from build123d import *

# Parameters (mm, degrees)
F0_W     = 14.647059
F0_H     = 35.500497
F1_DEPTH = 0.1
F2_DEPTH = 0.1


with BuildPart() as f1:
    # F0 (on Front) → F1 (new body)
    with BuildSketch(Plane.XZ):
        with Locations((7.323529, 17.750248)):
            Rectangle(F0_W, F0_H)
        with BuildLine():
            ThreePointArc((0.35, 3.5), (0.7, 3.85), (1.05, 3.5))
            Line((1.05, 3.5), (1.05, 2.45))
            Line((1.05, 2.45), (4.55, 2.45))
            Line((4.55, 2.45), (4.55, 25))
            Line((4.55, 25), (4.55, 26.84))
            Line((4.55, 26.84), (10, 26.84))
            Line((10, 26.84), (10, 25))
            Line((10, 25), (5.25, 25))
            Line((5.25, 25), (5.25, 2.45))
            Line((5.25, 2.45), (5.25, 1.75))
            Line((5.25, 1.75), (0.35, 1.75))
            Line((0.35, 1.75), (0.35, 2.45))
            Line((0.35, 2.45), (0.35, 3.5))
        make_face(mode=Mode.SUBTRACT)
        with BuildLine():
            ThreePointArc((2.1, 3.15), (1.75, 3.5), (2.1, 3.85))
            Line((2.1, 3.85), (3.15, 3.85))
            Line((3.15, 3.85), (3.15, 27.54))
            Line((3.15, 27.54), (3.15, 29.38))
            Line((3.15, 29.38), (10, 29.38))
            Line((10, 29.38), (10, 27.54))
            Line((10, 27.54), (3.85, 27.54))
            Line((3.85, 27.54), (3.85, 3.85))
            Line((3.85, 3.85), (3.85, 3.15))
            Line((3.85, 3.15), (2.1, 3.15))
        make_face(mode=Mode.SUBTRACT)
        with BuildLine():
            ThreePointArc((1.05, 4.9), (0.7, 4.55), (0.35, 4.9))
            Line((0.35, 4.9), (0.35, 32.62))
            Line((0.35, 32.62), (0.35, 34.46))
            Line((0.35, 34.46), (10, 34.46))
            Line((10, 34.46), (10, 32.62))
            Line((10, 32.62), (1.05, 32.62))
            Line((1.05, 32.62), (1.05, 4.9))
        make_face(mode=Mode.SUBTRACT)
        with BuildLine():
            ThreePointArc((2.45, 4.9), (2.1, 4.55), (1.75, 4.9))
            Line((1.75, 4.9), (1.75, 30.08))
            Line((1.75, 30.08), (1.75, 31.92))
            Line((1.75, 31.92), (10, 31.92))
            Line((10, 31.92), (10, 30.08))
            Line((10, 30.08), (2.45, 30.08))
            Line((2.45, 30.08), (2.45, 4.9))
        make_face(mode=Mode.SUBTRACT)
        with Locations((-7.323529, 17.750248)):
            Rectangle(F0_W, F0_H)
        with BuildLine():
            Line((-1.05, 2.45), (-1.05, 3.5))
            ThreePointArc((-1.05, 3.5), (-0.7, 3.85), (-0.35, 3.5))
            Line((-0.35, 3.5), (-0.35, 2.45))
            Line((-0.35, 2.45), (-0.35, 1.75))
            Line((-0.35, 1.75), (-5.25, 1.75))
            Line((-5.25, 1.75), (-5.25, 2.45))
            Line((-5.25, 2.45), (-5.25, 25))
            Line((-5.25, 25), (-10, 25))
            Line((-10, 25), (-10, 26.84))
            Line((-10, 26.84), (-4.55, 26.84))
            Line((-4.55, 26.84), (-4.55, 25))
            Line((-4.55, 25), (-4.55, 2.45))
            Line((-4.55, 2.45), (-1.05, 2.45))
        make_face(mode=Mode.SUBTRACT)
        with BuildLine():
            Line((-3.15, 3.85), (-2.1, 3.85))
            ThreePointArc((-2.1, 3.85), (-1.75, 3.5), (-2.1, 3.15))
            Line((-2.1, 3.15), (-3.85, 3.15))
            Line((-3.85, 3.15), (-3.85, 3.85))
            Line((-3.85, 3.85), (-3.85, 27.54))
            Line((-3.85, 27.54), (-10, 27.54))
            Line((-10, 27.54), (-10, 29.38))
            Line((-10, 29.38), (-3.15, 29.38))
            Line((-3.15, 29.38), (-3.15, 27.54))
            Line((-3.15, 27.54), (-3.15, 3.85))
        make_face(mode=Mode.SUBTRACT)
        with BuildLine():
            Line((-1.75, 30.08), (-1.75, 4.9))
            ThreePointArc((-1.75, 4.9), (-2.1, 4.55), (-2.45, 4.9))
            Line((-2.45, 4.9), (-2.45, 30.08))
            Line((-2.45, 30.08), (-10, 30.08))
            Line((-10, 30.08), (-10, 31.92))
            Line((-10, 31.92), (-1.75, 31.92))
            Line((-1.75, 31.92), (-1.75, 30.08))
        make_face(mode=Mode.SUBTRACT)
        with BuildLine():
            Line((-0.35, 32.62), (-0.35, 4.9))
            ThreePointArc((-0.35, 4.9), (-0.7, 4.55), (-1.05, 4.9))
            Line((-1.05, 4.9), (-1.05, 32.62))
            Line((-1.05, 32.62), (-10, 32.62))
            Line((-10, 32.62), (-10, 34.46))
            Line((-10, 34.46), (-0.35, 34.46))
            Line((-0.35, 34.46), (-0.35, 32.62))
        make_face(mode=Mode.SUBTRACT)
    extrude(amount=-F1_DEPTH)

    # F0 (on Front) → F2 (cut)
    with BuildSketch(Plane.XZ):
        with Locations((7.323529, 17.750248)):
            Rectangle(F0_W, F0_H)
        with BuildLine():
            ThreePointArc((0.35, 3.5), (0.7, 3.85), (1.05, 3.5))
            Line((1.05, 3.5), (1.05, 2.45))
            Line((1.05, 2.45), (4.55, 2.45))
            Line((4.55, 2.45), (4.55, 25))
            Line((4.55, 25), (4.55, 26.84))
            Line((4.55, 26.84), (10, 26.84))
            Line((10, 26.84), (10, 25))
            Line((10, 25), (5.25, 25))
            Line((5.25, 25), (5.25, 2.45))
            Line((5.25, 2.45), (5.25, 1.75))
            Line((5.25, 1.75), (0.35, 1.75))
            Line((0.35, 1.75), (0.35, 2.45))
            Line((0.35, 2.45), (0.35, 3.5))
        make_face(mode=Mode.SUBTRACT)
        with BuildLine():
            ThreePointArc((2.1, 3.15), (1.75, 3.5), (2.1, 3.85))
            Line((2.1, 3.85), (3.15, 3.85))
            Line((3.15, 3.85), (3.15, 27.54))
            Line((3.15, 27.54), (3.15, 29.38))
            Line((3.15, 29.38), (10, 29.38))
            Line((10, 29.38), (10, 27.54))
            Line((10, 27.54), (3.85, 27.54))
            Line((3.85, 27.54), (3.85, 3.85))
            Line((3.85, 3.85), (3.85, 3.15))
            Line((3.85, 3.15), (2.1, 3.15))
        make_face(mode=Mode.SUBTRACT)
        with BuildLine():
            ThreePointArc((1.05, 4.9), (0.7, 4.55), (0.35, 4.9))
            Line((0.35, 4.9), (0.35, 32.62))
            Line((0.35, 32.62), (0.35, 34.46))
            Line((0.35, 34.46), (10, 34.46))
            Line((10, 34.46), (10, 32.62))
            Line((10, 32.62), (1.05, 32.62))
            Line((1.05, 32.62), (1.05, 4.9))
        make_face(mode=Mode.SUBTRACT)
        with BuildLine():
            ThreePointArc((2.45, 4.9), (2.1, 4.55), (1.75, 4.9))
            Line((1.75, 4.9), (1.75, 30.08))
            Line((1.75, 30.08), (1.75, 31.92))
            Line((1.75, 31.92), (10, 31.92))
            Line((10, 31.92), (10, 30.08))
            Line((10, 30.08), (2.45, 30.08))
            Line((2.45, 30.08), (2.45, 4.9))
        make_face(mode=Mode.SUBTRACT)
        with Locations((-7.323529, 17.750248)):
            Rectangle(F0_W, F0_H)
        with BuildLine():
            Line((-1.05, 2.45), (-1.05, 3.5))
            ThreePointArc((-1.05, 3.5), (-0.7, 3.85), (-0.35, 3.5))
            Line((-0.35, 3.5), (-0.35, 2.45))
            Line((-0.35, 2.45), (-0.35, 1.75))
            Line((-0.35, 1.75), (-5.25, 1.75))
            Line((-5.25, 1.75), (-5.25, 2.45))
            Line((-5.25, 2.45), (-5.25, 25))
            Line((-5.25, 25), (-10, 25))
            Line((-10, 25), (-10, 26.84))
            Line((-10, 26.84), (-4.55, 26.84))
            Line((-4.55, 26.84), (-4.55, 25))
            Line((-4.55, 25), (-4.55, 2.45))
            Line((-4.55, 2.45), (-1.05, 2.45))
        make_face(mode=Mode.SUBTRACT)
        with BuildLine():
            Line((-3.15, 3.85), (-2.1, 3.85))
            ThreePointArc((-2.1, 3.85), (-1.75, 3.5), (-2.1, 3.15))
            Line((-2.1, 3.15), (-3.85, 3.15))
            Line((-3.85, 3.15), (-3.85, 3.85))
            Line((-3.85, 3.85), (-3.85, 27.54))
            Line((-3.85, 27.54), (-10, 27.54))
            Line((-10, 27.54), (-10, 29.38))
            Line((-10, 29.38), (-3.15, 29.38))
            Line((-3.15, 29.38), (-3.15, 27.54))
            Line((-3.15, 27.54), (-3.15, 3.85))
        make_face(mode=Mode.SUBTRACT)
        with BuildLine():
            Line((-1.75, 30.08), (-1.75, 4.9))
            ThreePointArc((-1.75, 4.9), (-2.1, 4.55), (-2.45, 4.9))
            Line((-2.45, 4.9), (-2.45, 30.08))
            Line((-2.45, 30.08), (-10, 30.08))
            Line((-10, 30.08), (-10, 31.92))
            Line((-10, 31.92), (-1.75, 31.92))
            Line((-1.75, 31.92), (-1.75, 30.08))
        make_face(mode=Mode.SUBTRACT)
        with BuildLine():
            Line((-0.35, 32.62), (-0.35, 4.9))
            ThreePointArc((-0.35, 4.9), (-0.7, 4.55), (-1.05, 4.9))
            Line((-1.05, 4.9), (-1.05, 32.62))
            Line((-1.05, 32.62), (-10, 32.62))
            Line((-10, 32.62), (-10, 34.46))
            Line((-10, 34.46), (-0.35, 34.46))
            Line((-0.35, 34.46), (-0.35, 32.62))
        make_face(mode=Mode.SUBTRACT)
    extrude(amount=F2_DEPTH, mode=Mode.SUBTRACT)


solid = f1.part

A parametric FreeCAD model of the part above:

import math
import FreeCAD as App
import Part
import Sketcher
from FreeCAD import Vector

doc = App.newDocument("Part")
body = doc.addObject("PartDesign::Body", "Body")

# Sketch on XZ plane
sketch1 = body.newObject("Sketcher::SketchObject", "Sketch")
sketch1.AttachmentSupport = (doc.getObject("XZ_Plane"), [""])
sketch1.MapMode = "FlatFace"
sketch1.addGeometry([
    Part.LineSegment(Vector(-14.647058, 35.500496, 0), Vector(-14.647058, 0, 0)),  # 0
    Part.LineSegment(Vector(-14.647058, 0, 0), Vector(14.647058, 0, 0)),  # 1
    Part.LineSegment(Vector(14.647058, 0, 0), Vector(14.647058, 35.500496, 0)),  # 2
    Part.LineSegment(Vector(14.647058, 35.500496, 0), Vector(-14.647058, 35.500496, 0)),  # 3
    Part.LineSegment(Vector(-4.55, 2.45, 0), Vector(-1.05, 2.45, 0)),  # 4
    Part.LineSegment(Vector(-1.05, 2.45, 0), Vector(-1.05, 3.5, 0)),  # 5
    Part.ArcOfCircle(Part.Circle(Vector(-0.7, 3.5, 0), Vector(0, 0, 1), 0.35), math.radians(0), math.radians(180)),  # 6
    Part.LineSegment(Vector(-0.35, 3.5, 0), Vector(-0.35, 1.75, 0)),  # 7
    Part.LineSegment(Vector(-0.35, 1.75, 0), Vector(-5.25, 1.75, 0)),  # 8
    Part.LineSegment(Vector(-5.25, 1.75, 0), Vector(-5.25, 25, 0)),  # 9
    Part.LineSegment(Vector(-5.25, 25, 0), Vector(-10, 25, 0)),  # 10
    Part.LineSegment(Vector(-10, 25, 0), Vector(-10, 26.84, 0)),  # 11
    Part.LineSegment(Vector(-10, 26.84, 0), Vector(-4.55, 26.84, 0)),  # 12
    Part.LineSegment(Vector(-4.55, 26.84, 0), Vector(-4.55, 2.45, 0)),  # 13
    Part.LineSegment(Vector(-3.15, 29.38, 0), Vector(-3.15, 3.85, 0)),  # 14
    Part.LineSegment(Vector(-3.15, 3.85, 0), Vector(-2.1, 3.85, 0)),  # 15
    Part.ArcOfCircle(Part.Circle(Vector(-2.1, 3.5, 0), Vector(0, 0, 1), 0.35), math.radians(-90), math.radians(90)),  # 16
    Part.LineSegment(Vector(-2.1, 3.15, 0), Vector(-3.85, 3.15, 0)),  # 17
    Part.LineSegment(Vector(-3.85, 3.15, 0), Vector(-3.85, 27.54, 0)),  # 18
    Part.LineSegment(Vector(-3.85, 27.54, 0), Vector(-10, 27.54, 0)),  # 19
    Part.LineSegment(Vector(-10, 27.54, 0), Vector(-10, 29.38, 0)),  # 20
    Part.LineSegment(Vector(-10, 29.38, 0), Vector(-3.15, 29.38, 0)),  # 21
    Part.LineSegment(Vector(0.35, 1.75, 0), Vector(0.35, 3.5, 0)),  # 22
    Part.ArcOfCircle(Part.Circle(Vector(0.7, 3.5, 0), Vector(0, 0, 1), 0.35), math.radians(0), math.radians(180)),  # 23
    Part.LineSegment(Vector(1.05, 3.5, 0), Vector(1.05, 2.45, 0)),  # 24
    Part.LineSegment(Vector(1.05, 2.45, 0), Vector(4.55, 2.45, 0)),  # 25
    Part.LineSegment(Vector(4.55, 2.45, 0), Vector(4.55, 26.84, 0)),  # 26
    Part.LineSegment(Vector(4.55, 26.84, 0), Vector(10, 26.84, 0)),  # 27
    Part.LineSegment(Vector(10, 26.84, 0), Vector(10, 25, 0)),  # 28
    Part.LineSegment(Vector(10, 25, 0), Vector(5.25, 25, 0)),  # 29
    Part.LineSegment(Vector(5.25, 25, 0), Vector(5.25, 1.75, 0)),  # 30
    Part.LineSegment(Vector(5.25, 1.75, 0), Vector(0.35, 1.75, 0)),  # 31
    Part.LineSegment(Vector(3.85, 3.15, 0), Vector(2.1, 3.15, 0)),  # 32
    Part.ArcOfCircle(Part.Circle(Vector(2.1, 3.5, 0), Vector(0, 0, 1), 0.35), math.radians(90), math.radians(270)),  # 33
    Part.LineSegment(Vector(2.1, 3.85, 0), Vector(3.15, 3.85, 0)),  # 34
    Part.LineSegment(Vector(3.15, 3.85, 0), Vector(3.15, 29.38, 0)),  # 35
    Part.LineSegment(Vector(3.15, 29.38, 0), Vector(10, 29.38, 0)),  # 36
    Part.LineSegment(Vector(10, 29.38, 0), Vector(10, 27.54, 0)),  # 37
    Part.LineSegment(Vector(10, 27.54, 0), Vector(3.85, 27.54, 0)),  # 38
    Part.LineSegment(Vector(3.85, 27.54, 0), Vector(3.85, 3.15, 0)),  # 39
    Part.LineSegment(Vector(-1.75, 31.92, 0), Vector(-1.75, 4.9, 0)),  # 40
    Part.ArcOfCircle(Part.Circle(Vector(-2.1, 4.9, 0), Vector(0, 0, 1), 0.35), math.radians(180), math.radians(360)),  # 41
    Part.LineSegment(Vector(-2.45, 4.9, 0), Vector(-2.45, 30.08, 0)),  # 42
    Part.LineSegment(Vector(-2.45, 30.08, 0), Vector(-10, 30.08, 0)),  # 43
    Part.LineSegment(Vector(-10, 30.08, 0), Vector(-10, 31.92, 0)),  # 44
    Part.LineSegment(Vector(-10, 31.92, 0), Vector(-1.75, 31.92, 0)),  # 45
    Part.LineSegment(Vector(-0.35, 34.46, 0), Vector(-0.35, 4.9, 0)),  # 46
    Part.ArcOfCircle(Part.Circle(Vector(-0.7, 4.9, 0), Vector(0, 0, 1), 0.35), math.radians(180), math.radians(360)),  # 47
    Part.LineSegment(Vector(-1.05, 4.9, 0), Vector(-1.05, 32.62, 0)),  # 48
    Part.LineSegment(Vector(-1.05, 32.62, 0), Vector(-10, 32.62, 0)),  # 49
    Part.LineSegment(Vector(-10, 32.62, 0), Vector(-10, 34.46, 0)),  # 50
    Part.LineSegment(Vector(-10, 34.46, 0), Vector(-0.35, 34.46, 0)),  # 51
    Part.LineSegment(Vector(1.75, 31.92, 0), Vector(10, 31.92, 0)),  # 52
    Part.LineSegment(Vector(10, 31.92, 0), Vector(10, 30.08, 0)),  # 53
    Part.LineSegment(Vector(10, 30.08, 0), Vector(2.45, 30.08, 0)),  # 54
    Part.LineSegment(Vector(2.45, 30.08, 0), Vector(2.45, 4.9, 0)),  # 55
    Part.ArcOfCircle(Part.Circle(Vector(2.1, 4.9, 0), Vector(0, 0, 1), 0.35), math.radians(180), math.radians(360)),  # 56
    Part.LineSegment(Vector(1.75, 4.9, 0), Vector(1.75, 31.92, 0)),  # 57
    Part.LineSegment(Vector(1.05, 32.62, 0), Vector(1.05, 4.9, 0)),  # 58
    Part.ArcOfCircle(Part.Circle(Vector(0.7, 4.9, 0), Vector(0, 0, 1), 0.35), math.radians(180), math.radians(360)),  # 59
    Part.LineSegment(Vector(0.35, 4.9, 0), Vector(0.35, 34.46, 0)),  # 60
    Part.LineSegment(Vector(0.35, 34.46, 0), Vector(10, 34.46, 0)),  # 61
    Part.LineSegment(Vector(10, 34.46, 0), Vector(10, 32.62, 0)),  # 62
    Part.LineSegment(Vector(10, 32.62, 0), Vector(1.05, 32.62, 0)),  # 63
], False)
sketch1.addConstraint([
    Sketcher.Constraint("Coincident", 0, 2, 1, 1),
    Sketcher.Constraint("Coincident", 1, 2, 2, 1),
    Sketcher.Constraint("Coincident", 2, 2, 3, 1),
    Sketcher.Constraint("Coincident", 3, 2, 0, 1),
    Sketcher.Constraint("Coincident", 4, 2, 5, 1),
    Sketcher.Constraint("Tangent", 5, 2, 6, 2),
    Sketcher.Constraint("Tangent", 6, 1, 7, 1),
    Sketcher.Constraint("Coincident", 7, 2, 8, 1),
    Sketcher.Constraint("Coincident", 8, 2, 9, 1),
    Sketcher.Constraint("Coincident", 9, 2, 10, 1),
    Sketcher.Constraint("Coincident", 10, 2, 11, 1),
    Sketcher.Constraint("Coincident", 11, 2, 12, 1),
    Sketcher.Constraint("Coincident", 12, 2, 13, 1),
    Sketcher.Constraint("Coincident", 13, 2, 4, 1),
    Sketcher.Constraint("Coincident", 14, 2, 15, 1),
    Sketcher.Constraint("Tangent", 15, 2, 16, 2),
    Sketcher.Constraint("Tangent", 16, 1, 17, 1),
    Sketcher.Constraint("Coincident", 17, 2, 18, 1),
    Sketcher.Constraint("Coincident", 18, 2, 19, 1),
    Sketcher.Constraint("Coincident", 19, 2, 20, 1),
    Sketcher.Constraint("Coincident", 20, 2, 21, 1),
    Sketcher.Constraint("Coincident", 21, 2, 14, 1),
    Sketcher.Constraint("Tangent", 22, 2, 23, 2),
    Sketcher.Constraint("Tangent", 23, 1, 24, 1),
    Sketcher.Constraint("Coincident", 24, 2, 25, 1),
    Sketcher.Constraint("Coincident", 25, 2, 26, 1),
    Sketcher.Constraint("Coincident", 26, 2, 27, 1),
    Sketcher.Constraint("Coincident", 27, 2, 28, 1),
    Sketcher.Constraint("Coincident", 28, 2, 29, 1),
    Sketcher.Constraint("Coincident", 29, 2, 30, 1),
    Sketcher.Constraint("Coincident", 30, 2, 31, 1),
    Sketcher.Constraint("Coincident", 31, 2, 22, 1),
    Sketcher.Constraint("Tangent", 32, 2, 33, 2),
    Sketcher.Constraint("Tangent", 33, 1, 34, 1),
    Sketcher.Constraint("Coincident", 34, 2, 35, 1),
    Sketcher.Constraint("Coincident", 35, 2, 36, 1),
    Sketcher.Constraint("Coincident", 36, 2, 37, 1),
    Sketcher.Constraint("Coincident", 37, 2, 38, 1),
    Sketcher.Constraint("Coincident", 38, 2, 39, 1),
    Sketcher.Constraint("Coincident", 39, 2, 32, 1),
    Sketcher.Constraint("Tangent", 40, 2, 41, 2),
    Sketcher.Constraint("Tangent", 41, 1, 42, 1),
    Sketcher.Constraint("Coincident", 42, 2, 43, 1),
    Sketcher.Constraint("Coincident", 43, 2, 44, 1),
    Sketcher.Constraint("Coincident", 44, 2, 45, 1),
    Sketcher.Constraint("Coincident", 45, 2, 40, 1),
    Sketcher.Constraint("Tangent", 46, 2, 47, 2),
    Sketcher.Constraint("Tangent", 47, 1, 48, 1),
    Sketcher.Constraint("Coincident", 48, 2, 49, 1),
    Sketcher.Constraint("Coincident", 49, 2, 50, 1),
    Sketcher.Constraint("Coincident", 50, 2, 51, 1),
    Sketcher.Constraint("Coincident", 51, 2, 46, 1),
    Sketcher.Constraint("Coincident", 52, 2, 53, 1),
    Sketcher.Constraint("Coincident", 53, 2, 54, 1),
    Sketcher.Constraint("Coincident", 54, 2, 55, 1),
    Sketcher.Constraint("Tangent", 55, 2, 56, 2),
    Sketcher.Constraint("Tangent", 56, 1, 57, 1),
    Sketcher.Constraint("Coincident", 57, 2, 52, 1),
    Sketcher.Constraint("Tangent", 58, 2, 59, 2),
    Sketcher.Constraint("Tangent", 59, 1, 60, 1),
    Sketcher.Constraint("Coincident", 60, 2, 61, 1),
    Sketcher.Constraint("Coincident", 61, 2, 62, 1),
    Sketcher.Constraint("Coincident", 62, 2, 63, 1),
    Sketcher.Constraint("Coincident", 63, 2, 58, 1),
    Sketcher.Constraint("Vertical", 0),
    Sketcher.Constraint("Horizontal", 1),
    Sketcher.Constraint("Vertical", 2),
    Sketcher.Constraint("Horizontal", 3),
    Sketcher.Constraint("Horizontal", 4),
    Sketcher.Constraint("Vertical", 5),
    Sketcher.Constraint("Vertical", 7),
    Sketcher.Constraint("Horizontal", 8),
    Sketcher.Constraint("Vertical", 9),
    Sketcher.Constraint("Horizontal", 10),
    Sketcher.Constraint("Vertical", 11),
    Sketcher.Constraint("Horizontal", 12),
    Sketcher.Constraint("Vertical", 13),
    Sketcher.Constraint("Vertical", 14),
    Sketcher.Constraint("Horizontal", 15),
    Sketcher.Constraint("Horizontal", 17),
    Sketcher.Constraint("Vertical", 18),
    Sketcher.Constraint("Horizontal", 19),
    Sketcher.Constraint("Vertical", 20),
    Sketcher.Constraint("Horizontal", 21),
    Sketcher.Constraint("Vertical", 22),
    Sketcher.Constraint("Vertical", 24),
    Sketcher.Constraint("Horizontal", 25),
    Sketcher.Constraint("Vertical", 26),
    Sketcher.Constraint("Horizontal", 27),
    Sketcher.Constraint("Vertical", 28),
    Sketcher.Constraint("Horizontal", 29),
    Sketcher.Constraint("Vertical", 30),
    Sketcher.Constraint("Horizontal", 31),
    Sketcher.Constraint("Horizontal", 32),
    Sketcher.Constraint("Horizontal", 34),
    Sketcher.Constraint("Vertical", 35),
    Sketcher.Constraint("Horizontal", 36),
    Sketcher.Constraint("Vertical", 37),
    Sketcher.Constraint("Horizontal", 38),
    Sketcher.Constraint("Vertical", 39),
    Sketcher.Constraint("Vertical", 40),
    Sketcher.Constraint("Vertical", 42),
    Sketcher.Constraint("Horizontal", 43),
    Sketcher.Constraint("Vertical", 44),
    Sketcher.Constraint("Horizontal", 45),
    Sketcher.Constraint("Vertical", 46),
    Sketcher.Constraint("Vertical", 48),
    Sketcher.Constraint("Horizontal", 49),
    Sketcher.Constraint("Vertical", 50),
    Sketcher.Constraint("Horizontal", 51),
    Sketcher.Constraint("Horizontal", 52),
    Sketcher.Constraint("Vertical", 53),
    Sketcher.Constraint("Horizontal", 54),
    Sketcher.Constraint("Vertical", 55),
    Sketcher.Constraint("Vertical", 57),
    Sketcher.Constraint("Vertical", 58),
    Sketcher.Constraint("Vertical", 60),
    Sketcher.Constraint("Horizontal", 61),
    Sketcher.Constraint("Vertical", 62),
    Sketcher.Constraint("Horizontal", 63),
    Sketcher.Constraint("Equal", 6, 16),
    Sketcher.Constraint("Equal", 16, 23),
    Sketcher.Constraint("Equal", 23, 33),
    Sketcher.Constraint("Equal", 33, 41),
    Sketcher.Constraint("Equal", 41, 47),
    Sketcher.Constraint("Equal", 47, 56),
    Sketcher.Constraint("Equal", 56, 59),
    Sketcher.Constraint("Symmetric", 0, 2, 1, 2, -1, 1),
    Sketcher.Constraint("Symmetric", 6, 3, 23, 3, -2),
    Sketcher.Constraint("Symmetric", 16, 3, 33, 3, -2),
    Sketcher.Constraint("Symmetric", 41, 3, 56, 3, -2),
    Sketcher.Constraint("Symmetric", 47, 3, 59, 3, -2),
    Sketcher.Constraint("Symmetric", 13, 2, 25, 2, -2),
    Sketcher.Constraint("Symmetric", 11, 2, 27, 2, -2),
    Sketcher.Constraint("Symmetric", 9, 2, 29, 2, -2),
    Sketcher.Constraint("Symmetric", 21, 2, 35, 2, -2),
    Sketcher.Constraint("Symmetric", 19, 2, 37, 2, -2),
    Sketcher.Constraint("Symmetric", 44, 2, 52, 2, -2),
    Sketcher.Constraint("Symmetric", 50, 2, 61, 2, -2),
    Sketcher.Constraint("Horizontal", 6, 3, 16, 3),
    Sketcher.Constraint("Horizontal", 41, 3, 47, 3),
    Sketcher.Constraint("Horizontal", 8, 2, 30, 2),
    Sketcher.Constraint("Horizontal", 43, 2, 53, 2),
    Sketcher.Constraint("Horizontal", 49, 2, 62, 2),
    Sketcher.Constraint("Vertical", 16, 3, 41, 3),
    Sketcher.Constraint("Vertical", 6, 3, 47, 3),
    Sketcher.Constraint("Vertical", 11, 2, 19, 2),
    Sketcher.Constraint("Vertical", 20, 2, 43, 2),
    Sketcher.Constraint("Vertical", 44, 2, 49, 2),
    Sketcher.Constraint("Equal", 17, 32),
    Sketcher.Constraint("Equal", 34, 5),
    Sketcher.Constraint("Equal", 32, 7),
    Sketcher.Constraint("Equal", 13, 18),
    Sketcher.Constraint("Equal", 11, 20),
    Sketcher.Constraint("Equal", 37, 44),
    Sketcher.Constraint("Equal", 44, 50),
    Sketcher.Constraint("Radius", 6, 0.35),
    Sketcher.Constraint("DistanceX", 4, 1, 4, 2, 3.5),
    Sketcher.Constraint("DistanceX", 8, 2, 8, 1, 4.9),
    Sketcher.Constraint("DistanceY", -1, 1, 9, 2, 25.0),
    Sketcher.Constraint("DistanceX", 10, 2, -1, 1, 10.0),
    Sketcher.Constraint("DistanceX", 10, 2, 10, 1, 4.75),
    Sketcher.Constraint("DistanceX", 15, 1, 15, 2, 1.05),
    Sketcher.Constraint("DistanceX", 17, 2, 17, 1, 1.75),
    Sketcher.Constraint("DistanceX", 19, 2, 19, 1, 6.15),
    Sketcher.Constraint("DistanceY", 9, 1, 9, 2, 23.25),
    Sketcher.Constraint("DistanceY", 11, 1, 11, 2, 1.84),
    Sketcher.Constraint("DistanceY", 40, 2, 40, 1, 27.02),
    Sketcher.Constraint("DistanceY", 46, 2, 46, 1, 29.56),
    Sketcher.Constraint("DistanceY", -1, 1, 41, 3, 4.9),
    Sketcher.Constraint("DistanceX", 1, 1, 1, 2, 29.294117),
    Sketcher.Constraint("DistanceY", 0, 2, 0, 1, 35.500497),
])
pad1 = body.newObject("PartDesign::Pad", "Pad")
pad1.Profile = sketch1
pad1.Length = 0.1
pad1.Reversed = True

# Sketch on XZ plane
sketch2 = body.newObject("Sketcher::SketchObject", "Sketch001")
sketch2.AttachmentSupport = (doc.getObject("XZ_Plane"), [""])
sketch2.MapMode = "FlatFace"
sketch2.addGeometry([
    Part.LineSegment(Vector(-14.647058, 35.500496, 0), Vector(-14.647058, 0, 0)),  # 0
    Part.LineSegment(Vector(-14.647058, 0, 0), Vector(14.647058, 0, 0)),  # 1
    Part.LineSegment(Vector(14.647058, 0, 0), Vector(14.647058, 35.500496, 0)),  # 2
    Part.LineSegment(Vector(14.647058, 35.500496, 0), Vector(-14.647058, 35.500496, 0)),  # 3
    Part.LineSegment(Vector(-4.55, 2.45, 0), Vector(-1.05, 2.45, 0)),  # 4
    Part.LineSegment(Vector(-1.05, 2.45, 0), Vector(-1.05, 3.5, 0)),  # 5
    Part.ArcOfCircle(Part.Circle(Vector(-0.7, 3.5, 0), Vector(0, 0, 1), 0.35), math.radians(0), math.radians(180)),  # 6
    Part.LineSegment(Vector(-0.35, 3.5, 0), Vector(-0.35, 1.75, 0)),  # 7
    Part.LineSegment(Vector(-0.35, 1.75, 0), Vector(-5.25, 1.75, 0)),  # 8
    Part.LineSegment(Vector(-5.25, 1.75, 0), Vector(-5.25, 25, 0)),  # 9
    Part.LineSegment(Vector(-5.25, 25, 0), Vector(-10, 25, 0)),  # 10
    Part.LineSegment(Vector(-10, 25, 0), Vector(-10, 26.84, 0)),  # 11
    Part.LineSegment(Vector(-10, 26.84, 0), Vector(-4.55, 26.84, 0)),  # 12
    Part.LineSegment(Vector(-4.55, 26.84, 0), Vector(-4.55, 2.45, 0)),  # 13
    Part.LineSegment(Vector(-3.15, 29.38, 0), Vector(-3.15, 3.85, 0)),  # 14
    Part.LineSegment(Vector(-3.15, 3.85, 0), Vector(-2.1, 3.85, 0)),  # 15
    Part.ArcOfCircle(Part.Circle(Vector(-2.1, 3.5, 0), Vector(0, 0, 1), 0.35), math.radians(-90), math.radians(90)),  # 16
    Part.LineSegment(Vector(-2.1, 3.15, 0), Vector(-3.85, 3.15, 0)),  # 17
    Part.LineSegment(Vector(-3.85, 3.15, 0), Vector(-3.85, 27.54, 0)),  # 18
    Part.LineSegment(Vector(-3.85, 27.54, 0), Vector(-10, 27.54, 0)),  # 19
    Part.LineSegment(Vector(-10, 27.54, 0), Vector(-10, 29.38, 0)),  # 20
    Part.LineSegment(Vector(-10, 29.38, 0), Vector(-3.15, 29.38, 0)),  # 21
    Part.LineSegment(Vector(0.35, 1.75, 0), Vector(0.35, 3.5, 0)),  # 22
    Part.ArcOfCircle(Part.Circle(Vector(0.7, 3.5, 0), Vector(0, 0, 1), 0.35), math.radians(0), math.radians(180)),  # 23
    Part.LineSegment(Vector(1.05, 3.5, 0), Vector(1.05, 2.45, 0)),  # 24
    Part.LineSegment(Vector(1.05, 2.45, 0), Vector(4.55, 2.45, 0)),  # 25
    Part.LineSegment(Vector(4.55, 2.45, 0), Vector(4.55, 26.84, 0)),  # 26
    Part.LineSegment(Vector(4.55, 26.84, 0), Vector(10, 26.84, 0)),  # 27
    Part.LineSegment(Vector(10, 26.84, 0), Vector(10, 25, 0)),  # 28
    Part.LineSegment(Vector(10, 25, 0), Vector(5.25, 25, 0)),  # 29
    Part.LineSegment(Vector(5.25, 25, 0), Vector(5.25, 1.75, 0)),  # 30
    Part.LineSegment(Vector(5.25, 1.75, 0), Vector(0.35, 1.75, 0)),  # 31
    Part.LineSegment(Vector(3.85, 3.15, 0), Vector(2.1, 3.15, 0)),  # 32
    Part.ArcOfCircle(Part.Circle(Vector(2.1, 3.5, 0), Vector(0, 0, 1), 0.35), math.radians(90), math.radians(270)),  # 33
    Part.LineSegment(Vector(2.1, 3.85, 0), Vector(3.15, 3.85, 0)),  # 34
    Part.LineSegment(Vector(3.15, 3.85, 0), Vector(3.15, 29.38, 0)),  # 35
    Part.LineSegment(Vector(3.15, 29.38, 0), Vector(10, 29.38, 0)),  # 36
    Part.LineSegment(Vector(10, 29.38, 0), Vector(10, 27.54, 0)),  # 37
    Part.LineSegment(Vector(10, 27.54, 0), Vector(3.85, 27.54, 0)),  # 38
    Part.LineSegment(Vector(3.85, 27.54, 0), Vector(3.85, 3.15, 0)),  # 39
    Part.LineSegment(Vector(-1.75, 31.92, 0), Vector(-1.75, 4.9, 0)),  # 40
    Part.ArcOfCircle(Part.Circle(Vector(-2.1, 4.9, 0), Vector(0, 0, 1), 0.35), math.radians(180), math.radians(360)),  # 41
    Part.LineSegment(Vector(-2.45, 4.9, 0), Vector(-2.45, 30.08, 0)),  # 42
    Part.LineSegment(Vector(-2.45, 30.08, 0), Vector(-10, 30.08, 0)),  # 43
    Part.LineSegment(Vector(-10, 30.08, 0), Vector(-10, 31.92, 0)),  # 44
    Part.LineSegment(Vector(-10, 31.92, 0), Vector(-1.75, 31.92, 0)),  # 45
    Part.LineSegment(Vector(-0.35, 34.46, 0), Vector(-0.35, 4.9, 0)),  # 46
    Part.ArcOfCircle(Part.Circle(Vector(-0.7, 4.9, 0), Vector(0, 0, 1), 0.35), math.radians(180), math.radians(360)),  # 47
    Part.LineSegment(Vector(-1.05, 4.9, 0), Vector(-1.05, 32.62, 0)),  # 48
    Part.LineSegment(Vector(-1.05, 32.62, 0), Vector(-10, 32.62, 0)),  # 49
    Part.LineSegment(Vector(-10, 32.62, 0), Vector(-10, 34.46, 0)),  # 50
    Part.LineSegment(Vector(-10, 34.46, 0), Vector(-0.35, 34.46, 0)),  # 51
    Part.LineSegment(Vector(1.75, 31.92, 0), Vector(10, 31.92, 0)),  # 52
    Part.LineSegment(Vector(10, 31.92, 0), Vector(10, 30.08, 0)),  # 53
    Part.LineSegment(Vector(10, 30.08, 0), Vector(2.45, 30.08, 0)),  # 54
    Part.LineSegment(Vector(2.45, 30.08, 0), Vector(2.45, 4.9, 0)),  # 55
    Part.ArcOfCircle(Part.Circle(Vector(2.1, 4.9, 0), Vector(0, 0, 1), 0.35), math.radians(180), math.radians(360)),  # 56
    Part.LineSegment(Vector(1.75, 4.9, 0), Vector(1.75, 31.92, 0)),  # 57
    Part.LineSegment(Vector(1.05, 32.62, 0), Vector(1.05, 4.9, 0)),  # 58
    Part.ArcOfCircle(Part.Circle(Vector(0.7, 4.9, 0), Vector(0, 0, 1), 0.35), math.radians(180), math.radians(360)),  # 59
    Part.LineSegment(Vector(0.35, 4.9, 0), Vector(0.35, 34.46, 0)),  # 60
    Part.LineSegment(Vector(0.35, 34.46, 0), Vector(10, 34.46, 0)),  # 61
    Part.LineSegment(Vector(10, 34.46, 0), Vector(10, 32.62, 0)),  # 62
    Part.LineSegment(Vector(10, 32.62, 0), Vector(1.05, 32.62, 0)),  # 63
], False)
sketch2.addConstraint([
    Sketcher.Constraint("Coincident", 0, 2, 1, 1),
    Sketcher.Constraint("Coincident", 1, 2, 2, 1),
    Sketcher.Constraint("Coincident", 2, 2, 3, 1),
    Sketcher.Constraint("Coincident", 3, 2, 0, 1),
    Sketcher.Constraint("Coincident", 4, 2, 5, 1),
    Sketcher.Constraint("Tangent", 5, 2, 6, 2),
    Sketcher.Constraint("Tangent", 6, 1, 7, 1),
    Sketcher.Constraint("Coincident", 7, 2, 8, 1),
    Sketcher.Constraint("Coincident", 8, 2, 9, 1),
    Sketcher.Constraint("Coincident", 9, 2, 10, 1),
    Sketcher.Constraint("Coincident", 10, 2, 11, 1),
    Sketcher.Constraint("Coincident", 11, 2, 12, 1),
    Sketcher.Constraint("Coincident", 12, 2, 13, 1),
    Sketcher.Constraint("Coincident", 13, 2, 4, 1),
    Sketcher.Constraint("Coincident", 14, 2, 15, 1),
    Sketcher.Constraint("Tangent", 15, 2, 16, 2),
    Sketcher.Constraint("Tangent", 16, 1, 17, 1),
    Sketcher.Constraint("Coincident", 17, 2, 18, 1),
    Sketcher.Constraint("Coincident", 18, 2, 19, 1),
    Sketcher.Constraint("Coincident", 19, 2, 20, 1),
    Sketcher.Constraint("Coincident", 20, 2, 21, 1),
    Sketcher.Constraint("Coincident", 21, 2, 14, 1),
    Sketcher.Constraint("Tangent", 22, 2, 23, 2),
    Sketcher.Constraint("Tangent", 23, 1, 24, 1),
    Sketcher.Constraint("Coincident", 24, 2, 25, 1),
    Sketcher.Constraint("Coincident", 25, 2, 26, 1),
    Sketcher.Constraint("Coincident", 26, 2, 27, 1),
    Sketcher.Constraint("Coincident", 27, 2, 28, 1),
    Sketcher.Constraint("Coincident", 28, 2, 29, 1),
    Sketcher.Constraint("Coincident", 29, 2, 30, 1),
    Sketcher.Constraint("Coincident", 30, 2, 31, 1),
    Sketcher.Constraint("Coincident", 31, 2, 22, 1),
    Sketcher.Constraint("Tangent", 32, 2, 33, 2),
    Sketcher.Constraint("Tangent", 33, 1, 34, 1),
    Sketcher.Constraint("Coincident", 34, 2, 35, 1),
    Sketcher.Constraint("Coincident", 35, 2, 36, 1),
    Sketcher.Constraint("Coincident", 36, 2, 37, 1),
    Sketcher.Constraint("Coincident", 37, 2, 38, 1),
    Sketcher.Constraint("Coincident", 38, 2, 39, 1),
    Sketcher.Constraint("Coincident", 39, 2, 32, 1),
    Sketcher.Constraint("Tangent", 40, 2, 41, 2),
    Sketcher.Constraint("Tangent", 41, 1, 42, 1),
    Sketcher.Constraint("Coincident", 42, 2, 43, 1),
    Sketcher.Constraint("Coincident", 43, 2, 44, 1),
    Sketcher.Constraint("Coincident", 44, 2, 45, 1),
    Sketcher.Constraint("Coincident", 45, 2, 40, 1),
    Sketcher.Constraint("Tangent", 46, 2, 47, 2),
    Sketcher.Constraint("Tangent", 47, 1, 48, 1),
    Sketcher.Constraint("Coincident", 48, 2, 49, 1),
    Sketcher.Constraint("Coincident", 49, 2, 50, 1),
    Sketcher.Constraint("Coincident", 50, 2, 51, 1),
    Sketcher.Constraint("Coincident", 51, 2, 46, 1),
    Sketcher.Constraint("Coincident", 52, 2, 53, 1),
    Sketcher.Constraint("Coincident", 53, 2, 54, 1),
    Sketcher.Constraint("Coincident", 54, 2, 55, 1),
    Sketcher.Constraint("Tangent", 55, 2, 56, 2),
    Sketcher.Constraint("Tangent", 56, 1, 57, 1),
    Sketcher.Constraint("Coincident", 57, 2, 52, 1),
    Sketcher.Constraint("Tangent", 58, 2, 59, 2),
    Sketcher.Constraint("Tangent", 59, 1, 60, 1),
    Sketcher.Constraint("Coincident", 60, 2, 61, 1),
    Sketcher.Constraint("Coincident", 61, 2, 62, 1),
    Sketcher.Constraint("Coincident", 62, 2, 63, 1),
    Sketcher.Constraint("Coincident", 63, 2, 58, 1),
    Sketcher.Constraint("Vertical", 0),
    Sketcher.Constraint("Horizontal", 1),
    Sketcher.Constraint("Vertical", 2),
    Sketcher.Constraint("Horizontal", 3),
    Sketcher.Constraint("Horizontal", 4),
    Sketcher.Constraint("Vertical", 5),
    Sketcher.Constraint("Vertical", 7),
    Sketcher.Constraint("Horizontal", 8),
    Sketcher.Constraint("Vertical", 9),
    Sketcher.Constraint("Horizontal", 10),
    Sketcher.Constraint("Vertical", 11),
    Sketcher.Constraint("Horizontal", 12),
    Sketcher.Constraint("Vertical", 13),
    Sketcher.Constraint("Vertical", 14),
    Sketcher.Constraint("Horizontal", 15),
    Sketcher.Constraint("Horizontal", 17),
    Sketcher.Constraint("Vertical", 18),
    Sketcher.Constraint("Horizontal", 19),
    Sketcher.Constraint("Vertical", 20),
    Sketcher.Constraint("Horizontal", 21),
    Sketcher.Constraint("Vertical", 22),
    Sketcher.Constraint("Vertical", 24),
    Sketcher.Constraint("Horizontal", 25),
    Sketcher.Constraint("Vertical", 26),
    Sketcher.Constraint("Horizontal", 27),
    Sketcher.Constraint("Vertical", 28),
    Sketcher.Constraint("Horizontal", 29),
    Sketcher.Constraint("Vertical", 30),
    Sketcher.Constraint("Horizontal", 31),
    Sketcher.Constraint("Horizontal", 32),
    Sketcher.Constraint("Horizontal", 34),
    Sketcher.Constraint("Vertical", 35),
    Sketcher.Constraint("Horizontal", 36),
    Sketcher.Constraint("Vertical", 37),
    Sketcher.Constraint("Horizontal", 38),
    Sketcher.Constraint("Vertical", 39),
    Sketcher.Constraint("Vertical", 40),
    Sketcher.Constraint("Vertical", 42),
    Sketcher.Constraint("Horizontal", 43),
    Sketcher.Constraint("Vertical", 44),
    Sketcher.Constraint("Horizontal", 45),
    Sketcher.Constraint("Vertical", 46),
    Sketcher.Constraint("Vertical", 48),
    Sketcher.Constraint("Horizontal", 49),
    Sketcher.Constraint("Vertical", 50),
    Sketcher.Constraint("Horizontal", 51),
    Sketcher.Constraint("Horizontal", 52),
    Sketcher.Constraint("Vertical", 53),
    Sketcher.Constraint("Horizontal", 54),
    Sketcher.Constraint("Vertical", 55),
    Sketcher.Constraint("Vertical", 57),
    Sketcher.Constraint("Vertical", 58),
    Sketcher.Constraint("Vertical", 60),
    Sketcher.Constraint("Horizontal", 61),
    Sketcher.Constraint("Vertical", 62),
    Sketcher.Constraint("Horizontal", 63),
    Sketcher.Constraint("Equal", 6, 16),
    Sketcher.Constraint("Equal", 16, 23),
    Sketcher.Constraint("Equal", 23, 33),
    Sketcher.Constraint("Equal", 33, 41),
    Sketcher.Constraint("Equal", 41, 47),
    Sketcher.Constraint("Equal", 47, 56),
    Sketcher.Constraint("Equal", 56, 59),
    Sketcher.Constraint("Symmetric", 0, 2, 1, 2, -1, 1),
    Sketcher.Constraint("Symmetric", 6, 3, 23, 3, -2),
    Sketcher.Constraint("Symmetric", 16, 3, 33, 3, -2),
    Sketcher.Constraint("Symmetric", 41, 3, 56, 3, -2),
    Sketcher.Constraint("Symmetric", 47, 3, 59, 3, -2),
    Sketcher.Constraint("Symmetric", 13, 2, 25, 2, -2),
    Sketcher.Constraint("Symmetric", 11, 2, 27, 2, -2),
    Sketcher.Constraint("Symmetric", 9, 2, 29, 2, -2),
    Sketcher.Constraint("Symmetric", 21, 2, 35, 2, -2),
    Sketcher.Constraint("Symmetric", 19, 2, 37, 2, -2),
    Sketcher.Constraint("Symmetric", 44, 2, 52, 2, -2),
    Sketcher.Constraint("Symmetric", 50, 2, 61, 2, -2),
    Sketcher.Constraint("Horizontal", 6, 3, 16, 3),
    Sketcher.Constraint("Horizontal", 41, 3, 47, 3),
    Sketcher.Constraint("Horizontal", 8, 2, 30, 2),
    Sketcher.Constraint("Horizontal", 43, 2, 53, 2),
    Sketcher.Constraint("Horizontal", 49, 2, 62, 2),
    Sketcher.Constraint("Vertical", 16, 3, 41, 3),
    Sketcher.Constraint("Vertical", 6, 3, 47, 3),
    Sketcher.Constraint("Vertical", 11, 2, 19, 2),
    Sketcher.Constraint("Vertical", 20, 2, 43, 2),
    Sketcher.Constraint("Vertical", 44, 2, 49, 2),
    Sketcher.Constraint("Equal", 17, 32),
    Sketcher.Constraint("Equal", 34, 5),
    Sketcher.Constraint("Equal", 32, 7),
    Sketcher.Constraint("Equal", 13, 18),
    Sketcher.Constraint("Equal", 11, 20),
    Sketcher.Constraint("Equal", 37, 44),
    Sketcher.Constraint("Equal", 44, 50),
    Sketcher.Constraint("Radius", 6, 0.35),
    Sketcher.Constraint("DistanceX", 4, 1, 4, 2, 3.5),
    Sketcher.Constraint("DistanceX", 8, 2, 8, 1, 4.9),
    Sketcher.Constraint("DistanceY", -1, 1, 9, 2, 25.0),
    Sketcher.Constraint("DistanceX", 10, 2, -1, 1, 10.0),
    Sketcher.Constraint("DistanceX", 10, 2, 10, 1, 4.75),
    Sketcher.Constraint("DistanceX", 15, 1, 15, 2, 1.05),
    Sketcher.Constraint("DistanceX", 17, 2, 17, 1, 1.75),
    Sketcher.Constraint("DistanceX", 19, 2, 19, 1, 6.15),
    Sketcher.Constraint("DistanceY", 9, 1, 9, 2, 23.25),
    Sketcher.Constraint("DistanceY", 11, 1, 11, 2, 1.84),
    Sketcher.Constraint("DistanceY", 40, 2, 40, 1, 27.02),
    Sketcher.Constraint("DistanceY", 46, 2, 46, 1, 29.56),
    Sketcher.Constraint("DistanceY", -1, 1, 41, 3, 4.9),
    Sketcher.Constraint("DistanceX", 1, 1, 1, 2, 29.294117),
    Sketcher.Constraint("DistanceY", 0, 2, 0, 1, 35.500497),
])
pocket1 = body.newObject("PartDesign::Pocket", "Pocket")
pocket1.Profile = sketch2
pocket1.Length = 0.1
pocket1.Reversed = True

doc.recompute()
